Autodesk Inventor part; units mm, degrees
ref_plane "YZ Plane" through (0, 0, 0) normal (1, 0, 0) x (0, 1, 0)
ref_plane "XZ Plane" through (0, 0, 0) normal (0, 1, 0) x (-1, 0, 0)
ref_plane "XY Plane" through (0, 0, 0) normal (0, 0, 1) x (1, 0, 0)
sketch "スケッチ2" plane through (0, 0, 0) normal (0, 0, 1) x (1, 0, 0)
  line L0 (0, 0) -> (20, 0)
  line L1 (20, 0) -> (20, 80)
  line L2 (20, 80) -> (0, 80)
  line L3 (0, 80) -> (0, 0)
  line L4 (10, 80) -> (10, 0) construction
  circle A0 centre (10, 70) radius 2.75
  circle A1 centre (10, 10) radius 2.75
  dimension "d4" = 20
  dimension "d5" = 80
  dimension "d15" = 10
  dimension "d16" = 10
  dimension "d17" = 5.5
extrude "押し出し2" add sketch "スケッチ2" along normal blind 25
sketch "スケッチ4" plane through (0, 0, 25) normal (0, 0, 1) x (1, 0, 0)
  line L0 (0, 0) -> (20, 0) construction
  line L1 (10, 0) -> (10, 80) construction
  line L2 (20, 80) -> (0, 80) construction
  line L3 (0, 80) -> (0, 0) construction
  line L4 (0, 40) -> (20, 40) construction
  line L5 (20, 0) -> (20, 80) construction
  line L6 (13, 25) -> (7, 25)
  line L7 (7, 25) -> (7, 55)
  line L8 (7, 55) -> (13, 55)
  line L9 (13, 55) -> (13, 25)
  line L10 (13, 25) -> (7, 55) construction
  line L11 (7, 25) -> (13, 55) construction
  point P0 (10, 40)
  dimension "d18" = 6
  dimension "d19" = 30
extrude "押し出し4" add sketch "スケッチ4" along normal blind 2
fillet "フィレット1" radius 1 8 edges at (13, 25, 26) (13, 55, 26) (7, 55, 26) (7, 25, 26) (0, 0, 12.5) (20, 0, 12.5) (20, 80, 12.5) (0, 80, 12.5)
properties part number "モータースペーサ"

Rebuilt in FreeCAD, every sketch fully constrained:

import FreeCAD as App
import Part
import Sketcher


def edges_at(feature, points):
    """Names of the edges that pass closest to the given points."""
    edges = feature.Shape.Edges
    near = lambda p: min(range(len(edges)), key=lambda i: edges[i].distToShape(Part.Vertex(*p))[0])
    return sorted({f"Edge{near(p) + 1}" for p in points})

doc = App.newDocument("Part")
body = doc.addObject("PartDesign::Body", "Body")

sketch1 = body.newObject("Sketcher::SketchObject", "Sketch")
sketch1.AttachmentSupport = (doc.getObject("XY_Plane"), [""])
sketch1.MapMode = "FlatFace"
sketch1.addGeometry(Part.LineSegment(App.Vector(0, 80, 0), App.Vector(0, 0, 0)), False)
sketch1.addGeometry(Part.LineSegment(App.Vector(0, 0, 0), App.Vector(20, 0, 0)), False)
sketch1.addGeometry(Part.LineSegment(App.Vector(20, 0, 0), App.Vector(20, 80, 0)), False)
sketch1.addGeometry(Part.LineSegment(App.Vector(20, 80, 0), App.Vector(0, 80, 0)), False)
sketch1.addGeometry(Part.Circle(App.Vector(10, 10, 0), App.Vector(0, 0, 1), 2.75), False)
sketch1.addGeometry(Part.Circle(App.Vector(10, 70, 0), App.Vector(0, 0, 1), 2.75), False)
sketch1.addConstraint(Sketcher.Constraint("Coincident", 0, 2, 1, 1))
sketch1.addConstraint(Sketcher.Constraint("Coincident", 1, 2, 2, 1))
sketch1.addConstraint(Sketcher.Constraint("Coincident", 2, 2, 3, 1))
sketch1.addConstraint(Sketcher.Constraint("Coincident", 3, 2, 0, 1))
sketch1.addConstraint(Sketcher.Constraint("Vertical", 0))
sketch1.addConstraint(Sketcher.Constraint("Horizontal", 1))
sketch1.addConstraint(Sketcher.Constraint("Vertical", 2))
sketch1.addConstraint(Sketcher.Constraint("Horizontal", 3))
sketch1.addConstraint(Sketcher.Constraint("Coincident", 0, 2, -1, 1))
sketch1.addConstraint(Sketcher.Constraint("Equal", 4, 5))
sketch1.addConstraint(Sketcher.Constraint("Vertical", 4, 3, 5, 3))
sketch1.addConstraint(Sketcher.Constraint("Diameter", 4, 5.5))
sketch1.addConstraint(Sketcher.Constraint("DistanceX", 1, 1, 1, 2, 20.0))
sketch1.addConstraint(Sketcher.Constraint("DistanceY", 0, 2, 0, 1, 80.0))
sketch1.addConstraint(Sketcher.Constraint("DistanceX", -1, 1, 4, 3, 10.0))
sketch1.addConstraint(Sketcher.Constraint("DistanceY", -1, 1, 4, 3, 10.0))
sketch1.addConstraint(Sketcher.Constraint("DistanceY", 5, 3, 2, 2, 10.0))
pad1 = body.newObject("PartDesign::Pad", "Pad")
pad1.Profile = sketch1
pad1.Length = 25

sketch2 = body.newObject("Sketcher::SketchObject", "Sketch001")
sketch2.AttachmentSupport = (doc.getObject("XY_Plane"), [""])
sketch2.MapMode = "FlatFace"
sketch2.AttachmentOffset = App.Placement(App.Vector(0, 0, 25), App.Rotation())
sketch2.addGeometry(Part.LineSegment(App.Vector(7, 25, 0), App.Vector(13, 25, 0)), False)
sketch2.addGeometry(Part.LineSegment(App.Vector(13, 25, 0), App.Vector(13, 55, 0)), False)
sketch2.addGeometry(Part.LineSegment(App.Vector(13, 55, 0), App.Vector(7, 55, 0)), False)
sketch2.addGeometry(Part.LineSegment(App.Vector(7, 55, 0), App.Vector(7, 25, 0)), False)
sketch2.addConstraint(Sketcher.Constraint("Coincident", 0, 2, 1, 1))
sketch2.addConstraint(Sketcher.Constraint("Coincident", 1, 2, 2, 1))
sketch2.addConstraint(Sketcher.Constraint("Coincident", 2, 2, 3, 1))
sketch2.addConstraint(Sketcher.Constraint("Coincident", 3, 2, 0, 1))
sketch2.addConstraint(Sketcher.Constraint("Horizontal", 0))
sketch2.addConstraint(Sketcher.Constraint("Vertical", 1))
sketch2.addConstraint(Sketcher.Constraint("Horizontal", 2))
sketch2.addConstraint(Sketcher.Constraint("Vertical", 3))
sketch2.addConstraint(Sketcher.Constraint("DistanceX", 0, 1, 0, 2, 6.0))
sketch2.addConstraint(Sketcher.Constraint("DistanceY", 1, 1, 1, 2, 30.0))
sketch2.addConstraint(Sketcher.Constraint("DistanceX", -1, 1, 0, 2, 13.0))
sketch2.addConstraint(Sketcher.Constraint("DistanceY", -1, 1, 0, 2, 25.0))
pad2 = body.newObject("PartDesign::Pad", "Pad001")
pad2.Profile = sketch2
pad2.Length = 2
doc.recompute()

fillet = body.newObject("PartDesign::Fillet", "Fillet")
fillet.Base = (pad2, edges_at(pad2, [
    (13, 25, 26),
    (13, 55, 26),
    (7, 55, 26),
    (7, 25, 26),
    (0, 0, 12.5),
    (20, 0, 12.5),
    (20, 80, 12.5),
    (0, 80, 12.5),
]))
fillet.Radius = 1

doc.recompute()
